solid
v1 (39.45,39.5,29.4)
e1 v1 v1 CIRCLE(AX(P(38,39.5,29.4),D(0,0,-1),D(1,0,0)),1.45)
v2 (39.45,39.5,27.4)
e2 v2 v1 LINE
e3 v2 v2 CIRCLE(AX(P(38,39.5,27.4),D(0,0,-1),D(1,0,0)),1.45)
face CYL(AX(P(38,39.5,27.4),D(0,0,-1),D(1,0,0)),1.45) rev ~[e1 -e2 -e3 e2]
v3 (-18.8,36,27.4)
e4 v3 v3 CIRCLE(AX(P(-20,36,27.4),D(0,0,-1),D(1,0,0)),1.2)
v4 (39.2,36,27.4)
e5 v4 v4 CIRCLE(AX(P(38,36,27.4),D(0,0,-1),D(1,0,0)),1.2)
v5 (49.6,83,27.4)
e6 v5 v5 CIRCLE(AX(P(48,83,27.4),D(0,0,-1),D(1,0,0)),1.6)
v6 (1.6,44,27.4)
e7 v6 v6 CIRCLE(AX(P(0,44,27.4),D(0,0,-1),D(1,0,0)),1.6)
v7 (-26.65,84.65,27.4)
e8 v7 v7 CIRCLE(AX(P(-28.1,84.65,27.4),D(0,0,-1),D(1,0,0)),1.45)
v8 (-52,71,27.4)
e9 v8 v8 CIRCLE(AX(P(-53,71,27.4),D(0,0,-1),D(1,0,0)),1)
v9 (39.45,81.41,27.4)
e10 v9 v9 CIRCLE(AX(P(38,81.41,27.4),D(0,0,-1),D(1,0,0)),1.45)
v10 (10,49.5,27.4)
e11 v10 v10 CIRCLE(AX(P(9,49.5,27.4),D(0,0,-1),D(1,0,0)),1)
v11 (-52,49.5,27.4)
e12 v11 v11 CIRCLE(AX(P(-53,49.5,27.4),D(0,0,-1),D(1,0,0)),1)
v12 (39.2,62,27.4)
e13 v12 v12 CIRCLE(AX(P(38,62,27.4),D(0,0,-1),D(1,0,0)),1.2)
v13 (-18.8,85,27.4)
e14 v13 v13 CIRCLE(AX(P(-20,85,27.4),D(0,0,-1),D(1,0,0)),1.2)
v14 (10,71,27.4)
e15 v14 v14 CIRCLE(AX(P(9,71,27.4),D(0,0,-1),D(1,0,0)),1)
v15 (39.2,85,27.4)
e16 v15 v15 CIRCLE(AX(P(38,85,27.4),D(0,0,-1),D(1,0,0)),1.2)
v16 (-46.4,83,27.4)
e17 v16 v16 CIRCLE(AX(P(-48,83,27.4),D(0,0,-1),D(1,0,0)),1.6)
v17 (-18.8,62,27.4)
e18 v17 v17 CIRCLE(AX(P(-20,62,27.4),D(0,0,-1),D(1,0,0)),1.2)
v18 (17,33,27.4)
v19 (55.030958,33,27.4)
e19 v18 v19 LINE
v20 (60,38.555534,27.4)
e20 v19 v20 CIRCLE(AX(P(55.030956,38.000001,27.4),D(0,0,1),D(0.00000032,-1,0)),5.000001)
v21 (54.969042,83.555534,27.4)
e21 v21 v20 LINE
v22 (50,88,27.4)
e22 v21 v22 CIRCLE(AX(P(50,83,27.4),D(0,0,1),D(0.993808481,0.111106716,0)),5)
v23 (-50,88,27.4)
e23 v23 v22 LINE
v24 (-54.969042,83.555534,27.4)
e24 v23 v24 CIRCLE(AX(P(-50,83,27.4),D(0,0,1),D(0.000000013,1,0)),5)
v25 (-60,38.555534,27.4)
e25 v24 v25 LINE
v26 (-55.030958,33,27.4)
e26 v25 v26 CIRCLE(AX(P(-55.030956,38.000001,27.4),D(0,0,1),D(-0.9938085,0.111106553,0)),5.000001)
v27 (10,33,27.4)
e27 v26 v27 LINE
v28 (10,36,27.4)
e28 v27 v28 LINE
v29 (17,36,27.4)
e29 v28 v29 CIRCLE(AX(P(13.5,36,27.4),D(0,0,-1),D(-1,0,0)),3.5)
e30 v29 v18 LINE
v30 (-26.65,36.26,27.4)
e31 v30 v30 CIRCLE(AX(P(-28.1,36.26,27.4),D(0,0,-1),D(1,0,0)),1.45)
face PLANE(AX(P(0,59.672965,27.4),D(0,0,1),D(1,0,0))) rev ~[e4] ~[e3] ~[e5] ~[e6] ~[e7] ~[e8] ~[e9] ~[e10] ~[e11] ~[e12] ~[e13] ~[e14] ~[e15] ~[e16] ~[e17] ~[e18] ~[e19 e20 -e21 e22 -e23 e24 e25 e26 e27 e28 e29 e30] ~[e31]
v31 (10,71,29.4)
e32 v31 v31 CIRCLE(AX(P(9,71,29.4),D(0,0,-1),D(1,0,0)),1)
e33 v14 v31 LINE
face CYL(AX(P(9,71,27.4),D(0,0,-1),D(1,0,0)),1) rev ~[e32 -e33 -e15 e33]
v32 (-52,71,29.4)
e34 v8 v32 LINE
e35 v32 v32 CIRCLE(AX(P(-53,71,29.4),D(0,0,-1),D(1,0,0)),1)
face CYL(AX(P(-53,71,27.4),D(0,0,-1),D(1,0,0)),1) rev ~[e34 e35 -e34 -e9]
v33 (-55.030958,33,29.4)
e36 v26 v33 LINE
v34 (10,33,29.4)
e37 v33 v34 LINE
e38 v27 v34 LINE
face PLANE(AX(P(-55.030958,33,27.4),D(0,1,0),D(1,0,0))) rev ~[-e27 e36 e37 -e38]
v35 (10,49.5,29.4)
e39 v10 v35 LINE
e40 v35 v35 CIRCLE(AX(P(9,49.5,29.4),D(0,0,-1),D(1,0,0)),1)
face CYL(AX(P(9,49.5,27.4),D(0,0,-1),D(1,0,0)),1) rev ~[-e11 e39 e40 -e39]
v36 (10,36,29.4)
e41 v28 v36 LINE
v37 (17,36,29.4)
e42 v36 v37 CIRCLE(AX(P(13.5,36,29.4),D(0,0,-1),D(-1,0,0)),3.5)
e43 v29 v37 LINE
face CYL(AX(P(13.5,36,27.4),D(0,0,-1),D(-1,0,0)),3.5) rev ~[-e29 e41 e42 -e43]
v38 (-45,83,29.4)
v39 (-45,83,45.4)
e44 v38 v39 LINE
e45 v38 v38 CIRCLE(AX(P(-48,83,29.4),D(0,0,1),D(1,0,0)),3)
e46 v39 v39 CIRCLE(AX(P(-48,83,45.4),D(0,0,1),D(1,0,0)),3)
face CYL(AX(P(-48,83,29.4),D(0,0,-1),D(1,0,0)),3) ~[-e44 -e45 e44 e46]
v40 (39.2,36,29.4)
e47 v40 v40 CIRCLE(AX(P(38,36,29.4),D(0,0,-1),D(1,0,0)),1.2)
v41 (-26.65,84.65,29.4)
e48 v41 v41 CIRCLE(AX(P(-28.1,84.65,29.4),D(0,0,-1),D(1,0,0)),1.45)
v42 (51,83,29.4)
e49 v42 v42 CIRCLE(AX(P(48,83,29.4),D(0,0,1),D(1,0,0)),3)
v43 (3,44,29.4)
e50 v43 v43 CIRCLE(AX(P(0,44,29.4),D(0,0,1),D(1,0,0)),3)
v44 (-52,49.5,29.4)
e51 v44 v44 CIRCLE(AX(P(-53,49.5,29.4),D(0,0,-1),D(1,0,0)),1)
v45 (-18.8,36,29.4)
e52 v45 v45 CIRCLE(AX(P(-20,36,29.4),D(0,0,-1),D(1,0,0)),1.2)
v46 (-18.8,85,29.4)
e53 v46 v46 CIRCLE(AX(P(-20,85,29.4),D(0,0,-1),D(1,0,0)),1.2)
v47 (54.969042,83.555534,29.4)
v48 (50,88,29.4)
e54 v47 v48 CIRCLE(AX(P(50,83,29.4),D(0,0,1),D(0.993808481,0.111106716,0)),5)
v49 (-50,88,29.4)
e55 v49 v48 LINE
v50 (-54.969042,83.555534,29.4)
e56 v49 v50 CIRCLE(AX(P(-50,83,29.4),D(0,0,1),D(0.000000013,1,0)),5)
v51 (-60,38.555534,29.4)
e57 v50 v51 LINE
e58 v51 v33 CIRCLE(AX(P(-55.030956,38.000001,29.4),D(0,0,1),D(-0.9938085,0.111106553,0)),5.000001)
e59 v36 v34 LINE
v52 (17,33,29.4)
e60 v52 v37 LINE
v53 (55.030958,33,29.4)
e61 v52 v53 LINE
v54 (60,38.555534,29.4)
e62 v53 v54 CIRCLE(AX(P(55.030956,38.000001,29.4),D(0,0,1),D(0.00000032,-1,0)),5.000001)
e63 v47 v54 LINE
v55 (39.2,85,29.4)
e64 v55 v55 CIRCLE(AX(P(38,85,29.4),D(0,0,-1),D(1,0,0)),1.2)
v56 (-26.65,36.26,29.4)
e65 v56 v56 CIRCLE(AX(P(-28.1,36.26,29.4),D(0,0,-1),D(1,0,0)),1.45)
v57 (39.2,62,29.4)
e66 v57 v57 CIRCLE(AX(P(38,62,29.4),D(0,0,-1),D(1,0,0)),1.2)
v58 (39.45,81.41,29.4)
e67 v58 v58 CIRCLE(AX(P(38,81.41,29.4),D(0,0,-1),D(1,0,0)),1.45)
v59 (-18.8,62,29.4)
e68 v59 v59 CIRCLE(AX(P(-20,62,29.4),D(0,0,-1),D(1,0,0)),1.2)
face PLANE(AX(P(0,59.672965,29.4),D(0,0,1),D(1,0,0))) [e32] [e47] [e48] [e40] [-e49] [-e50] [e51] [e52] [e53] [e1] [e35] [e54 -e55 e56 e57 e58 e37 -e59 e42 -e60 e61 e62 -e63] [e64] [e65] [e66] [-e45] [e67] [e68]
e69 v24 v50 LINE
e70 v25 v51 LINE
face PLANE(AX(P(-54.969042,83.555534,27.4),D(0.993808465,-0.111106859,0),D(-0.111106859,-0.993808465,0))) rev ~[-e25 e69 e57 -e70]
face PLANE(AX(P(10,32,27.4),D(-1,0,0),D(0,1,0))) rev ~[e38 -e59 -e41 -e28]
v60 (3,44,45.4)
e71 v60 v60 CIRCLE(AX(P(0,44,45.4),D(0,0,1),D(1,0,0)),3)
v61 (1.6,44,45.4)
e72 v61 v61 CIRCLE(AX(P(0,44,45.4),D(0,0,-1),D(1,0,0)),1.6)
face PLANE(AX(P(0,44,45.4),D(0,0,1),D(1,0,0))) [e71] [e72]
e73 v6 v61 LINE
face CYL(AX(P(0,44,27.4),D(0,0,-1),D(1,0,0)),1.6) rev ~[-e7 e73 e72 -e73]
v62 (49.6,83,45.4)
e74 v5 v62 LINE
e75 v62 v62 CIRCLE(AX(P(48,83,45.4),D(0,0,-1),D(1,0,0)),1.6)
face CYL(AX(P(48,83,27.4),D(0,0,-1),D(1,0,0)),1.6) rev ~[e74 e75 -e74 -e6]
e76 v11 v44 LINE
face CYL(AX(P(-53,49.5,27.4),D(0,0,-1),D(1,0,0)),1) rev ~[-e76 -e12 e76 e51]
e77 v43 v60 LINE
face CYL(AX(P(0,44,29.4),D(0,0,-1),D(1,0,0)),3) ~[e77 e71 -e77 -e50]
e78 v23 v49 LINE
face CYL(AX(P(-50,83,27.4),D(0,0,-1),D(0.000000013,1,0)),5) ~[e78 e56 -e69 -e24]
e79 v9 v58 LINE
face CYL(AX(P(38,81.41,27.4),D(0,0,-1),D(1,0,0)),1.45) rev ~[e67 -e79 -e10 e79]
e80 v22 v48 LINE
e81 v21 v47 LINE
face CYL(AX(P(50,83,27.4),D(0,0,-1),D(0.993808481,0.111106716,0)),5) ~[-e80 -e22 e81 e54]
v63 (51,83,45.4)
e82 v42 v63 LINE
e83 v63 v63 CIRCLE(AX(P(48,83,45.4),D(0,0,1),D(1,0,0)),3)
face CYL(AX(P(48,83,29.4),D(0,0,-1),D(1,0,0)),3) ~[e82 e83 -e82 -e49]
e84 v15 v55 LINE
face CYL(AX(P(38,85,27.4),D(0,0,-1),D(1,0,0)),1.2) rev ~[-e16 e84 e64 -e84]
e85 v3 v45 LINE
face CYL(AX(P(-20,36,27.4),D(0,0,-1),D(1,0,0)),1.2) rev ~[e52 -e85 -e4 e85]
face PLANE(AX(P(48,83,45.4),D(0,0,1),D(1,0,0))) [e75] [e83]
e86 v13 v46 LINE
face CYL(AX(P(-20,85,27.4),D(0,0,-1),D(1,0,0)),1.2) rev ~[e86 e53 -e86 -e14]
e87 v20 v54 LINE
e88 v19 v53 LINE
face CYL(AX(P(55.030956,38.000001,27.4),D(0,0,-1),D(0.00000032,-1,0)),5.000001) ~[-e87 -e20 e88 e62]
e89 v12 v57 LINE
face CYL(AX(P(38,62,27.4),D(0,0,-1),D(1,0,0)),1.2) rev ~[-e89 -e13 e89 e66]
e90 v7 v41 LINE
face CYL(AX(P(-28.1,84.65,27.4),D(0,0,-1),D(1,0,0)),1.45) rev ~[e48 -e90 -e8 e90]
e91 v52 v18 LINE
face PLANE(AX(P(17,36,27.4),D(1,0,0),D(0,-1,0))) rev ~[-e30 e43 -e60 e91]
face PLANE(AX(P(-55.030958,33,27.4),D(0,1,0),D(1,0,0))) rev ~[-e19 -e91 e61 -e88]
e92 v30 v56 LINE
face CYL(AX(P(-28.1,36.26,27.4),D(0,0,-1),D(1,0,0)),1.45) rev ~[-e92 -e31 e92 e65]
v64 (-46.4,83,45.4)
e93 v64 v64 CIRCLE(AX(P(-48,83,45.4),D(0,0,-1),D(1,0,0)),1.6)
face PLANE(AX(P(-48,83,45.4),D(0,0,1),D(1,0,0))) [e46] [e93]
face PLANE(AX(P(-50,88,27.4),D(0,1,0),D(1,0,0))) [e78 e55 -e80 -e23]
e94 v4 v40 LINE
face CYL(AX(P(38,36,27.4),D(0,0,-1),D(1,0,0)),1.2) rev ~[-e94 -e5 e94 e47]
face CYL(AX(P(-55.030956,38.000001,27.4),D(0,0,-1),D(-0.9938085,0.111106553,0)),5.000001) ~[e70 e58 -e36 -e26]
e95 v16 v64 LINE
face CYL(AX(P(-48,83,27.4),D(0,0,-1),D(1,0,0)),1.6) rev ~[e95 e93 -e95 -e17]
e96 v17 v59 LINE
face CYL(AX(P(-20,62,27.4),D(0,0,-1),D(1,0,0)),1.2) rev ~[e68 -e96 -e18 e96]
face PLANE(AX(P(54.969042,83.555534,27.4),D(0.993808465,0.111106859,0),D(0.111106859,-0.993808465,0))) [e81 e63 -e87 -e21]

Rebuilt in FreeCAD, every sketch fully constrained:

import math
import FreeCAD as App
import Part
import Sketcher
Q = App.Units.Quantity

doc = App.newDocument("Part")
body = doc.addObject("PartDesign::Body", "Body")

# Sketch on XY plane
sketch1 = doc.addObject("Sketcher::SketchObject", "Sketch")
body.addObject(sketch1)
sketch1.AttachmentSupport = (doc.XY_Plane, [""])
sketch1.MapMode = "FlatFace"
sketch1.addGeometry([
    Part.ArcOfCircle(Part.Circle(App.Vector(-50, 39, 0), App.Vector(0, 0, 1), 5), math.radians(90), math.radians(174)),  # 0
    Part.LineSegment(App.Vector(-55, 39.6, 0), App.Vector(-60, -5.4, 0)),  # 1
    Part.ArcOfCircle(Part.Circle(App.Vector(-55, -6, 0), App.Vector(0, 0, 1), 5), math.radians(174), math.radians(270)),  # 2
    Part.LineSegment(App.Vector(-55, -11, 0), App.Vector(55, -11, 0)),  # 3
    Part.ArcOfCircle(Part.Circle(App.Vector(55, -6, 0), App.Vector(0, 0, 1), 5), math.radians(-90), math.radians(6)),  # 4
    Part.LineSegment(App.Vector(60, -5.4, 0), App.Vector(55, 39.6, 0)),  # 5
    Part.ArcOfCircle(Part.Circle(App.Vector(50, 39, 0), App.Vector(0, 0, 1), 5), math.radians(6), math.radians(90)),  # 6
    Part.LineSegment(App.Vector(50, 44, 0), App.Vector(-50, 44, 0)),  # 7
], False)
sketch1.addConstraint([
    Sketcher.Constraint("Tangent", 0, 2, 1, 1),
    Sketcher.Constraint("Tangent", 1, 2, 2, 1),
    Sketcher.Constraint("Tangent", 2, 2, 3, 1),
    Sketcher.Constraint("Tangent", 3, 2, 4, 1),
    Sketcher.Constraint("Tangent", 4, 2, 5, 1),
    Sketcher.Constraint("Tangent", 5, 2, 6, 1),
    Sketcher.Constraint("Tangent", 6, 2, 7, 1),
    Sketcher.Constraint("Tangent", 7, 2, 0, 1),
    Sketcher.Constraint("Horizontal", 3),
    Sketcher.Constraint("Horizontal", 7),
    Sketcher.Constraint("Equal", 0, 2),
    Sketcher.Constraint("Equal", 2, 4),
    Sketcher.Constraint("Equal", 4, 6),
    Sketcher.Constraint("Symmetric", 1, 2, 4, 2, -2),
    Sketcher.Constraint("Radius", 0, Q("5 mm")),
    Sketcher.Constraint("DistanceX", 7, 2, 7, 1, Q("100 mm")),
    Sketcher.Constraint("DistanceY", -1, 1, 0, 3, Q("39 mm")),
    Sketcher.Constraint("DistanceY", 2, 3, -1, 1, Q("5.999999 mm")),
    Sketcher.Constraint("DistanceX", 1, 2, -1, 1, Q("60 mm")),
])
pad1 = doc.addObject("PartDesign::Pad", "Pad")
body.addObject(pad1)
pad1.Profile = sketch1
pad1.Length = 2

# Sketch on XY plane
sketch2 = doc.addObject("Sketcher::SketchObject", "Sketch001")
body.addObject(sketch2)
sketch2.AttachmentSupport = (doc.XY_Plane, [""])
sketch2.MapMode = "FlatFace"
sketch2.AttachmentOffset = App.Placement(App.Vector(0, 0, 2), App.Rotation())
sketch2.addGeometry([
    Part.Circle(App.Vector(0, 0, 0), App.Vector(0, 0, 1), 3),
    Part.Circle(App.Vector(-48, 39, 0), App.Vector(0, 0, 1), 3),
    Part.Circle(App.Vector(48, 39, 0), App.Vector(0, 0, 1), 3),
], False)
sketch2.addConstraint([
    Sketcher.Constraint("Coincident", 0, 3, -1, 1),
    Sketcher.Constraint("Equal", 0, 1),
    Sketcher.Constraint("Equal", 1, 2),
    Sketcher.Constraint("Symmetric", 1, 3, 2, 3, -2),
    Sketcher.Constraint("Diameter", 0, Q("6 mm")),
    Sketcher.Constraint("DistanceX", 1, 3, -1, 1, Q("48 mm")),
    Sketcher.Constraint("DistanceY", -1, 1, 1, 3, Q("39 mm")),
])
pad2 = doc.addObject("PartDesign::Pad", "Pad001")
body.addObject(pad2)
pad2.Profile = sketch2
pad2.Length = 16

# Sketch on XY plane
sketch3 = doc.addObject("Sketcher::SketchObject", "Sketch002")
body.addObject(sketch3)
sketch3.AttachmentSupport = (doc.XY_Plane, [""])
sketch3.MapMode = "FlatFace"
sketch3.addGeometry([
    Part.Circle(App.Vector(0, 0, 0), App.Vector(0, 0, 1), 1.6),  # 0
    Part.Circle(App.Vector(-48, 39, 0), App.Vector(0, 0, 1), 1.6),  # 1
    Part.Circle(App.Vector(48, 39, 0), App.Vector(0, 0, 1), 1.6),  # 2
    Part.Circle(App.Vector(9, 5.5, 0), App.Vector(0, 0, 1), 1),  # 3
    Part.Circle(App.Vector(9, 27, 0), App.Vector(0, 0, 1), 1),  # 4
    Part.Circle(App.Vector(38, -8, 0), App.Vector(0, 0, 1), 1.2),  # 5
    Part.Circle(App.Vector(38, 41, 0), App.Vector(0, 0, 1), 1.2),  # 6
    Part.Circle(App.Vector(-20, 41, 0), App.Vector(0, 0, 1), 1.2),  # 7
    Part.Circle(App.Vector(-53, 27, 0), App.Vector(0, 0, 1), 1),  # 8
    Part.Circle(App.Vector(-53, 5.5, 0), App.Vector(0, 0, 1), 1),  # 9
    Part.Circle(App.Vector(-20, -8, 0), App.Vector(0, 0, 1), 1.2),  # 10
    Part.Circle(App.Vector(-28.1, -7.7, 0), App.Vector(0, 0, 1), 1.4),  # 11
    Part.Circle(App.Vector(38, -4.5, 0), App.Vector(0, 0, 1), 1.4),  # 12
    Part.Circle(App.Vector(-28.1, 40.6, 0), App.Vector(0, 0, 1), 1.4),  # 13
    Part.Circle(App.Vector(38, 37.4, 0), App.Vector(0, 0, 1), 1.4),  # 14
    Part.Circle(App.Vector(-20, 18, 0), App.Vector(0, 0, 1), 1.2),  # 15
    Part.Circle(App.Vector(38, 18, 0), App.Vector(0, 0, 1), 1.2),  # 16
    Part.ArcOfCircle(Part.Circle(App.Vector(13.5, -12, 0), App.Vector(0, 0, 1), 3.5), math.radians(180), math.radians(360)),  # 17
    Part.LineSegment(App.Vector(10, -12, 0), App.Vector(10, -8, 0)),  # 18
    Part.ArcOfCircle(Part.Circle(App.Vector(13.5, -8, 0), App.Vector(0, 0, 1), 3.5), math.radians(0), math.radians(180)),  # 19
    Part.LineSegment(App.Vector(17, -8, 0), App.Vector(17, -12, 0)),  # 20
], False)
sketch3.addConstraint([
    Sketcher.Constraint("Tangent", 17, 1, 18, 1),
    Sketcher.Constraint("Tangent", 18, 2, 19, 2),
    Sketcher.Constraint("Tangent", 19, 1, 20, 1),
    Sketcher.Constraint("Tangent", 20, 2, 17, 2),
    Sketcher.Constraint("Vertical", 18),
    Sketcher.Constraint("Vertical", 20),
    Sketcher.Constraint("Coincident", 0, 3, -1, 1),
    Sketcher.Constraint("Equal", 0, 1),
    Sketcher.Constraint("Equal", 1, 2),
    Sketcher.Constraint("Equal", 3, 4),
    Sketcher.Constraint("Equal", 5, 6),
    Sketcher.Constraint("Equal", 6, 7),
    Sketcher.Constraint("Equal", 4, 8),
    Sketcher.Constraint("Equal", 8, 9),
    Sketcher.Constraint("Equal", 7, 10),
    Sketcher.Constraint("Equal", 11, 12),
    Sketcher.Constraint("Equal", 12, 13),
    Sketcher.Constraint("Equal", 13, 14),
    Sketcher.Constraint("Equal", 10, 15),
    Sketcher.Constraint("Equal", 15, 16),
    Sketcher.Constraint("Symmetric", 1, 3, 2, 3, -2),
    Sketcher.Constraint("Horizontal", 6, 3, 7, 3),
    Sketcher.Constraint("Horizontal", 4, 3, 8, 3),
    Sketcher.Constraint("Horizontal", 3, 3, 9, 3),
    Sketcher.Constraint("Horizontal", 5, 3, 10, 3),
    Sketcher.Constraint("Horizontal", 15, 3, 16, 3),
    Sketcher.Constraint("Horizontal", 10, 3, 19, 3),
    Sketcher.Constraint("Vertical", 3, 3, 4, 3),
    Sketcher.Constraint("Vertical", 5, 3, 6, 3),
    Sketcher.Constraint("Vertical", 8, 3, 9, 3),
    Sketcher.Constraint("Vertical", 7, 3, 10, 3),
    Sketcher.Constraint("Vertical", 6, 3, 12, 3),
    Sketcher.Constraint("Vertical", 11, 3, 13, 3),
    Sketcher.Constraint("Vertical", 12, 3, 14, 3),
    Sketcher.Constraint("Vertical", 10, 3, 15, 3),
    Sketcher.Constraint("Vertical", 14, 3, 16, 3),
    Sketcher.Constraint("Diameter", 3, Q("2 mm")),
    Sketcher.Constraint("Diameter", 0, Q("3.2 mm")),
    Sketcher.Constraint("Diameter", 5, Q("2.4 mm")),
    Sketcher.Constraint("Diameter", 11, Q("2.9 mm")),
    Sketcher.Constraint("Radius", 17, Q("3.5 mm")),
    Sketcher.Constraint("DistanceY", 18, 1, 18, 2, Q("4 mm")),
    Sketcher.Constraint("DistanceX", 1, 3, -1, 1, Q("48 mm")),
    Sketcher.Constraint("DistanceY", -1, 1, 1, 3, Q("39 mm")),
    Sketcher.Constraint("DistanceX", -1, 1, 3, 3, Q("9 mm")),
    Sketcher.Constraint("DistanceY", -1, 1, 4, 3, Q("27 mm")),
    Sketcher.Constraint("DistanceX", -1, 1, 5, 3, Q("38 mm")),
    Sketcher.Constraint("DistanceY", 5, 3, -1, 1, Q("8 mm")),
    Sketcher.Constraint("DistanceY", -1, 1, 6, 3, Q("41 mm")),
    Sketcher.Constraint("DistanceX", 7, 3, -1, 1, Q("20 mm")),
    Sketcher.Constraint("DistanceX", 8, 3, -1, 1, Q("53 mm")),
    Sketcher.Constraint("DistanceY", -1, 1, 15, 3, Q("18 mm")),
    Sketcher.Constraint("DistanceX", -1, 1, 17, 1, Q("10 mm")),
    Sketcher.Constraint("DistanceY", 12, 3, 3, 3, Q("10 mm")),
    Sketcher.Constraint("DistanceY", -1, 1, 3, 3, Q("5.5 mm")),
    Sketcher.Constraint("DistanceX", 11, 3, -1, 1, Q("28.1 mm")),
    Sketcher.Constraint("DistanceY", 11, 3, -1, 1, Q("7.74 mm")),
    Sketcher.Constraint("DistanceY", -1, 1, 13, 3, Q("40.65 mm")),
    Sketcher.Constraint("DistanceY", -1, 1, 14, 3, Q("37.41 mm")),
])
pocket1 = doc.addObject("PartDesign::Pocket", "Pocket")
body.addObject(pocket1)
pocket1.Profile = sketch3
pocket1.Type = "ThroughAll"
pocket1.Reversed = True
body2 = doc.addObject("PartDesign::Body", "Body001")
doc.recompute()

body.Placement = App.Placement(App.Vector(0, 44, 27.4), App.Rotation(App.Vector(0, 0, 1), 0))
boolean = doc.addObject("PartDesign::Boolean", "Boolean")
body2.addObject(boolean)
boolean.Type = "Fuse"
boolean.addObjects([body])

doc.recompute()
